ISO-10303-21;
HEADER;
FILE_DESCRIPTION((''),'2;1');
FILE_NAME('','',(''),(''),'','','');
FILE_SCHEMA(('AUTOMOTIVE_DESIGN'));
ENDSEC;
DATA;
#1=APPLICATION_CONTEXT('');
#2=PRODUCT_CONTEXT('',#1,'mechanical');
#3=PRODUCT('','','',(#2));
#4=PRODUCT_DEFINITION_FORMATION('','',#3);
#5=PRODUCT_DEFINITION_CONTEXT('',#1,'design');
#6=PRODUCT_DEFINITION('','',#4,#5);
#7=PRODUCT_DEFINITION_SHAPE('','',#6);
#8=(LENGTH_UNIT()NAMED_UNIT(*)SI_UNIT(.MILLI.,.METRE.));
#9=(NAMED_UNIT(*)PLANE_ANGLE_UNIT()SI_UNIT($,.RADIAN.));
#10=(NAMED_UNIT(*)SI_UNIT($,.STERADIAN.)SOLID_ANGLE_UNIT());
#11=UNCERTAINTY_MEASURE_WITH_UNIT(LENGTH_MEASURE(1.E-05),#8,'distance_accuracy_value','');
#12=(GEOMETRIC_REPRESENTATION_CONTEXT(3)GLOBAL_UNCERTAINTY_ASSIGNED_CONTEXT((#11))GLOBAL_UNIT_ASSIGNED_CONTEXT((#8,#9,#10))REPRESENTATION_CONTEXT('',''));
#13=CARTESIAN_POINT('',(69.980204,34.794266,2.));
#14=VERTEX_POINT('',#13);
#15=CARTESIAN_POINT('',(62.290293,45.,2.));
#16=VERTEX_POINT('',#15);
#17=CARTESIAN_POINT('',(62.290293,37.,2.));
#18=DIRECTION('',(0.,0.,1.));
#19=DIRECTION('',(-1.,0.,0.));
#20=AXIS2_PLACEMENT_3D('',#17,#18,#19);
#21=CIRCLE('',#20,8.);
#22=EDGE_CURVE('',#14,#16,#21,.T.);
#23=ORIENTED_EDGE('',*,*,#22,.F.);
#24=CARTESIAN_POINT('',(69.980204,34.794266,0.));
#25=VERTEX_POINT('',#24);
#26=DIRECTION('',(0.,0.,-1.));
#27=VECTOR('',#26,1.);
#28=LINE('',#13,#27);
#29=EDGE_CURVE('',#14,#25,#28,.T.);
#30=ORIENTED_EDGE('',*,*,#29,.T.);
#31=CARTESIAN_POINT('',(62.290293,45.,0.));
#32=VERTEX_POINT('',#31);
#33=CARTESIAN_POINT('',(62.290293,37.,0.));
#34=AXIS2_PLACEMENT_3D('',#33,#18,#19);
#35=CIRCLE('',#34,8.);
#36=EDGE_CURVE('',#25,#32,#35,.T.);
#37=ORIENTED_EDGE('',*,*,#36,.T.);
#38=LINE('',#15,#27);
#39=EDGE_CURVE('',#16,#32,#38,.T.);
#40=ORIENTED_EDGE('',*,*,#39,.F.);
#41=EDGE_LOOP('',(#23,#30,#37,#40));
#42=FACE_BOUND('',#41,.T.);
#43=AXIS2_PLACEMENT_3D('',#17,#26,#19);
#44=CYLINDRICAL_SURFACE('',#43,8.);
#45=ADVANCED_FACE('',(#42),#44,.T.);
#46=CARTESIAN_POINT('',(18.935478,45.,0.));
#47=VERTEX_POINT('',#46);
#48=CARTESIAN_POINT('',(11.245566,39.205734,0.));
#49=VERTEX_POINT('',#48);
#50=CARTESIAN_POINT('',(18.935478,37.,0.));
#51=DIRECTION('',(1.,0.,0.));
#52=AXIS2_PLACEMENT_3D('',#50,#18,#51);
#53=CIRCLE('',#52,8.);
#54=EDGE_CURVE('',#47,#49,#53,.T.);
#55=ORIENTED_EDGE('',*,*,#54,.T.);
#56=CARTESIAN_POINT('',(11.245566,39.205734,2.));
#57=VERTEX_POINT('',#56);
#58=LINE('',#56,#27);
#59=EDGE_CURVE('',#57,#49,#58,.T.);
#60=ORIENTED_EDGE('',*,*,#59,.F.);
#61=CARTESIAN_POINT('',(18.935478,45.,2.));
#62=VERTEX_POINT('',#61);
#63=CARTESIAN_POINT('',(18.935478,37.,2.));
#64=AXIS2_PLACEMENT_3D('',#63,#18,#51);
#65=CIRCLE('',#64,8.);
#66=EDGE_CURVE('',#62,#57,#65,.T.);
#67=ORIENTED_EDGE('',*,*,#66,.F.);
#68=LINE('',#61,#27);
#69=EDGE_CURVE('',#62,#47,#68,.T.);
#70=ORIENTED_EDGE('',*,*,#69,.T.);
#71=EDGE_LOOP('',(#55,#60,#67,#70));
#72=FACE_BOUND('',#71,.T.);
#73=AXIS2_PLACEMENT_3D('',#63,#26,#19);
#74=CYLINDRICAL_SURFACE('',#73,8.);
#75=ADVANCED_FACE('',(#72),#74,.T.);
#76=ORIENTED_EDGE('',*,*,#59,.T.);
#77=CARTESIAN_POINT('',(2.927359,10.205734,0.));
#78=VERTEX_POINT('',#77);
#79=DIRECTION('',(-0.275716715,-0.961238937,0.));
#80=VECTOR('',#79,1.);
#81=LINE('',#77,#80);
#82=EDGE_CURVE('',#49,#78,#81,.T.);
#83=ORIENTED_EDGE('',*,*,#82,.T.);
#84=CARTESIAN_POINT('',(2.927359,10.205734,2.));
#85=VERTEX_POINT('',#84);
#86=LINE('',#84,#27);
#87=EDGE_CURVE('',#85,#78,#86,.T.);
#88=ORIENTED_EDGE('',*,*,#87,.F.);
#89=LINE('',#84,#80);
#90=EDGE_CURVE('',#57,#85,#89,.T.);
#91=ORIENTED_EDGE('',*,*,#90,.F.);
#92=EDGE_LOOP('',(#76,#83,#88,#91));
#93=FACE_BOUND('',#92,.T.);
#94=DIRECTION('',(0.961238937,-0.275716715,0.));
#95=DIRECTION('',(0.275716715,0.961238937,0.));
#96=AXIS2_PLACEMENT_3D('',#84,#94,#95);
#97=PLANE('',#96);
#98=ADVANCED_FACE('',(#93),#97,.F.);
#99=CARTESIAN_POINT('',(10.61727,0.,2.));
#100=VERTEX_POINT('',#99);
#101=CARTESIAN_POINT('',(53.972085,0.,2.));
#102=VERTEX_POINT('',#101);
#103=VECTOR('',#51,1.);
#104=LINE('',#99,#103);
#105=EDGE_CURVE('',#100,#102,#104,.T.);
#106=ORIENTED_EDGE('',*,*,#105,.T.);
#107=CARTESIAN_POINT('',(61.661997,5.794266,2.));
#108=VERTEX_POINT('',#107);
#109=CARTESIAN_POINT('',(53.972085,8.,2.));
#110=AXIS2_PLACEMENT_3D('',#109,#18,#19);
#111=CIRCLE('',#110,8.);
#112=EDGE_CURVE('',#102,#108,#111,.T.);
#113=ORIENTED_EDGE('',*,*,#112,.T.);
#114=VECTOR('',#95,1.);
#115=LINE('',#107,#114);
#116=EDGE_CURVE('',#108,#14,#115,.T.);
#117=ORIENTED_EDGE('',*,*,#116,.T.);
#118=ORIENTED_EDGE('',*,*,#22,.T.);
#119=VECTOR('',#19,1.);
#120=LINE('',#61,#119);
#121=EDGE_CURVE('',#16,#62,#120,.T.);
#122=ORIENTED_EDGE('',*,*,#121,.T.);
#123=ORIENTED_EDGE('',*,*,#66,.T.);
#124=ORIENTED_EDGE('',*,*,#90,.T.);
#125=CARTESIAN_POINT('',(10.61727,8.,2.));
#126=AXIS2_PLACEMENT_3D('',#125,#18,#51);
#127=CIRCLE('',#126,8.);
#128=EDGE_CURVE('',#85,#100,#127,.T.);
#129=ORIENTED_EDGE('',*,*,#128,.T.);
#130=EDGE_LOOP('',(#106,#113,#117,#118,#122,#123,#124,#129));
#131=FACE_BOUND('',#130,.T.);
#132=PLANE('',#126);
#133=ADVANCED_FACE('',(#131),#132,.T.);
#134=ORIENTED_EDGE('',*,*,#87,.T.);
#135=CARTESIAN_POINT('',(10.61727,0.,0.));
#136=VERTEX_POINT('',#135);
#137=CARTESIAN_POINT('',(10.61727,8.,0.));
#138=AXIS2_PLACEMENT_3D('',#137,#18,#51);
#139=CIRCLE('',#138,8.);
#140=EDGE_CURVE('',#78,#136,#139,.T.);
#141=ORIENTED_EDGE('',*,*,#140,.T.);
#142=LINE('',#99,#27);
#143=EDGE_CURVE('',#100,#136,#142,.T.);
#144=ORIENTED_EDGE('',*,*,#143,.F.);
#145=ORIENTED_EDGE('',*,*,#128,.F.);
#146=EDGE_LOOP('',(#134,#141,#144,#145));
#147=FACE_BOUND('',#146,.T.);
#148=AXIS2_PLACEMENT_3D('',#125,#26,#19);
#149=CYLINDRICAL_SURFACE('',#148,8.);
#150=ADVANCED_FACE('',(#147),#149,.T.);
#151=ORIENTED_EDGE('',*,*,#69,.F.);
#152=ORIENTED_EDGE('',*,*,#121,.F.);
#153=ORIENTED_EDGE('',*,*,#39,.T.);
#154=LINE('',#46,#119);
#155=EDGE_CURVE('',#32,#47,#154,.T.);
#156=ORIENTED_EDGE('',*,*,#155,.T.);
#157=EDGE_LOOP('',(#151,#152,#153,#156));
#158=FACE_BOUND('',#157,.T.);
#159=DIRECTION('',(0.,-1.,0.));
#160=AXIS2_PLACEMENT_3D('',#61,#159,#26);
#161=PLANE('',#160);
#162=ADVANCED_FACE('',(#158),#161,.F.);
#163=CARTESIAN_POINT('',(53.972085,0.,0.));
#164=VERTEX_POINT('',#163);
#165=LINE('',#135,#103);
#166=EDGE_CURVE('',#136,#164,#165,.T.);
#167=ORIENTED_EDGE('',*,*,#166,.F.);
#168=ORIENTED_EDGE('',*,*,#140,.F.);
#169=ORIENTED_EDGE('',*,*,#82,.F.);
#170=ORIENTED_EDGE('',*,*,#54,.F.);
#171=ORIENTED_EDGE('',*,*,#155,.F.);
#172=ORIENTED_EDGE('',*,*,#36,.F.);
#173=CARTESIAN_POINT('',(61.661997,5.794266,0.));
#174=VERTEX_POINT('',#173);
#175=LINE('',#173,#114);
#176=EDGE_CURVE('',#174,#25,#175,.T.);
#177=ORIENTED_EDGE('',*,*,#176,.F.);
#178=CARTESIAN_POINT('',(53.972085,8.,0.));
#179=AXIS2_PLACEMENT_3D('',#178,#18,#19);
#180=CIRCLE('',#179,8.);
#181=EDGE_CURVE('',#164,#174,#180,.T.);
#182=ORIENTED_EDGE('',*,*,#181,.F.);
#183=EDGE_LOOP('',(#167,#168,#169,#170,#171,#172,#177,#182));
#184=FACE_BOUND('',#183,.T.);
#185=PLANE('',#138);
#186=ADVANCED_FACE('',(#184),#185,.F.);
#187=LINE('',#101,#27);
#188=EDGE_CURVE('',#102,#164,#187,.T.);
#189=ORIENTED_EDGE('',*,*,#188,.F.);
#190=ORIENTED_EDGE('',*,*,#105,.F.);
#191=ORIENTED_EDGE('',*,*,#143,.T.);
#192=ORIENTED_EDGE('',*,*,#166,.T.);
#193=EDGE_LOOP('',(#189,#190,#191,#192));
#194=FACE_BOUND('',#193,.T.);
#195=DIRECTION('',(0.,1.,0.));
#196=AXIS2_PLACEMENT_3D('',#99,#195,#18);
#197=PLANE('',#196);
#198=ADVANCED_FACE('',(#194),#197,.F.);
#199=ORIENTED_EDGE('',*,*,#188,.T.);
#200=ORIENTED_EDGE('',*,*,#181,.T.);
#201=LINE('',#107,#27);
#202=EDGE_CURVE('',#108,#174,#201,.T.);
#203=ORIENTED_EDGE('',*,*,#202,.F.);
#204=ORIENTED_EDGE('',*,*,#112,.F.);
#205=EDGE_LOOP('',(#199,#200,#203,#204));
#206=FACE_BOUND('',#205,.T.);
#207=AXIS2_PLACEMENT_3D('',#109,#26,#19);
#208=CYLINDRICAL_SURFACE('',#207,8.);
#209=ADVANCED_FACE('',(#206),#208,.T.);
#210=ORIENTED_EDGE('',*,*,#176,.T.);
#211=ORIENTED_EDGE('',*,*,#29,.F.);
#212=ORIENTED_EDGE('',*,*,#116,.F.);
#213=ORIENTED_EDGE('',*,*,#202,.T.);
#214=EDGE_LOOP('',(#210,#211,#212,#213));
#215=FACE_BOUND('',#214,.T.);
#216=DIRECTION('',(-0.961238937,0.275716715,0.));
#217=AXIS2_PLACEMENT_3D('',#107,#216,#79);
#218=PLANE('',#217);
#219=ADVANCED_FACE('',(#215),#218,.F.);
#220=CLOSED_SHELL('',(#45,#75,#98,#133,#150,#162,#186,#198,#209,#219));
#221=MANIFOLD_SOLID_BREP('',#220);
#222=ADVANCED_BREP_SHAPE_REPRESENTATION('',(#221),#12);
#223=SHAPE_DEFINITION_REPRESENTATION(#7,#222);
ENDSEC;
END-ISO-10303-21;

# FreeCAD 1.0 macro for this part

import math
import FreeCAD as App
import Part
import Sketcher
Q = App.Units.Quantity

doc = App.newDocument("Part")
body = doc.addObject("PartDesign::Body", "Body")

# Sketch on XY plane
sketch1 = body.newObject("Sketcher::SketchObject", "Sketch")
sketch1.AttachmentSupport = (doc.getObject("XY_Plane"), [""])
sketch1.MapMode = "FlatFace"
sketch1.addGeometry([
    Part.LineSegment(App.Vector(10.61727, 0, 0), App.Vector(53.972085, 0, 0)),  # 0
    Part.ArcOfCircle(Part.Circle(App.Vector(53.972085, 8, 0), App.Vector(0, 0, 1), 8), math.radians(-90), math.radians(-16.00473)),  # 1
    Part.LineSegment(App.Vector(61.661997, 5.794266, 0), App.Vector(69.980204, 34.794266, 0)),  # 2
    Part.ArcOfCircle(Part.Circle(App.Vector(62.290293, 37, 0), App.Vector(0, 0, 1), 8), math.radians(-16.00473), math.radians(90)),  # 3
    Part.LineSegment(App.Vector(62.290293, 45, 0), App.Vector(18.935478, 45, 0)),  # 4
    Part.ArcOfCircle(Part.Circle(App.Vector(18.935478, 37, 0), App.Vector(0, 0, 1), 8), math.radians(90), math.radians(163.99527)),  # 5
    Part.LineSegment(App.Vector(11.245566, 39.205734, 0), App.Vector(2.927359, 10.205734, 0)),  # 6
    Part.ArcOfCircle(Part.Circle(App.Vector(10.61727, 8, 0), App.Vector(0, 0, 1), 8), math.radians(163.99527), math.radians(270)),  # 7
], False)
sketch1.addConstraint([
    Sketcher.Constraint("Tangent", 0, 2, 1, 1),
    Sketcher.Constraint("Tangent", 1, 2, 2, 1),
    Sketcher.Constraint("Tangent", 2, 2, 3, 1),
    Sketcher.Constraint("Tangent", 3, 2, 4, 1),
    Sketcher.Constraint("Tangent", 4, 2, 5, 1),
    Sketcher.Constraint("Tangent", 5, 2, 6, 1),
    Sketcher.Constraint("Tangent", 6, 2, 7, 1),
    Sketcher.Constraint("Tangent", 7, 2, 0, 1),
    Sketcher.Constraint("Horizontal", 0),
    Sketcher.Constraint("Horizontal", 4),
    Sketcher.Constraint("Equal", 1, 3),
    Sketcher.Constraint("Equal", 3, 5),
    Sketcher.Constraint("Equal", 5, 7),
    Sketcher.Constraint("PointOnObject", 0, 2, -1),
    Sketcher.Constraint("Parallel", 2, 6),
    Sketcher.Constraint("Radius", 1, Q("8 mm")),
    Sketcher.Constraint("DistanceY", -1, 1, 3, 3, Q("37 mm")),
    Sketcher.Constraint("DistanceX", 0, 1, 0, 2, Q("43.354815 mm")),
    Sketcher.Constraint("DistanceX", -1, 1, 7, 3, Q("10.61727 mm")),
    Sketcher.Constraint("DistanceX", -1, 1, 6, 2, Q("2.927359 mm")),
])
pad1 = body.newObject("PartDesign::Pad", "Pad")
pad1.Profile = sketch1
pad1.Length = 2

doc.recompute()
